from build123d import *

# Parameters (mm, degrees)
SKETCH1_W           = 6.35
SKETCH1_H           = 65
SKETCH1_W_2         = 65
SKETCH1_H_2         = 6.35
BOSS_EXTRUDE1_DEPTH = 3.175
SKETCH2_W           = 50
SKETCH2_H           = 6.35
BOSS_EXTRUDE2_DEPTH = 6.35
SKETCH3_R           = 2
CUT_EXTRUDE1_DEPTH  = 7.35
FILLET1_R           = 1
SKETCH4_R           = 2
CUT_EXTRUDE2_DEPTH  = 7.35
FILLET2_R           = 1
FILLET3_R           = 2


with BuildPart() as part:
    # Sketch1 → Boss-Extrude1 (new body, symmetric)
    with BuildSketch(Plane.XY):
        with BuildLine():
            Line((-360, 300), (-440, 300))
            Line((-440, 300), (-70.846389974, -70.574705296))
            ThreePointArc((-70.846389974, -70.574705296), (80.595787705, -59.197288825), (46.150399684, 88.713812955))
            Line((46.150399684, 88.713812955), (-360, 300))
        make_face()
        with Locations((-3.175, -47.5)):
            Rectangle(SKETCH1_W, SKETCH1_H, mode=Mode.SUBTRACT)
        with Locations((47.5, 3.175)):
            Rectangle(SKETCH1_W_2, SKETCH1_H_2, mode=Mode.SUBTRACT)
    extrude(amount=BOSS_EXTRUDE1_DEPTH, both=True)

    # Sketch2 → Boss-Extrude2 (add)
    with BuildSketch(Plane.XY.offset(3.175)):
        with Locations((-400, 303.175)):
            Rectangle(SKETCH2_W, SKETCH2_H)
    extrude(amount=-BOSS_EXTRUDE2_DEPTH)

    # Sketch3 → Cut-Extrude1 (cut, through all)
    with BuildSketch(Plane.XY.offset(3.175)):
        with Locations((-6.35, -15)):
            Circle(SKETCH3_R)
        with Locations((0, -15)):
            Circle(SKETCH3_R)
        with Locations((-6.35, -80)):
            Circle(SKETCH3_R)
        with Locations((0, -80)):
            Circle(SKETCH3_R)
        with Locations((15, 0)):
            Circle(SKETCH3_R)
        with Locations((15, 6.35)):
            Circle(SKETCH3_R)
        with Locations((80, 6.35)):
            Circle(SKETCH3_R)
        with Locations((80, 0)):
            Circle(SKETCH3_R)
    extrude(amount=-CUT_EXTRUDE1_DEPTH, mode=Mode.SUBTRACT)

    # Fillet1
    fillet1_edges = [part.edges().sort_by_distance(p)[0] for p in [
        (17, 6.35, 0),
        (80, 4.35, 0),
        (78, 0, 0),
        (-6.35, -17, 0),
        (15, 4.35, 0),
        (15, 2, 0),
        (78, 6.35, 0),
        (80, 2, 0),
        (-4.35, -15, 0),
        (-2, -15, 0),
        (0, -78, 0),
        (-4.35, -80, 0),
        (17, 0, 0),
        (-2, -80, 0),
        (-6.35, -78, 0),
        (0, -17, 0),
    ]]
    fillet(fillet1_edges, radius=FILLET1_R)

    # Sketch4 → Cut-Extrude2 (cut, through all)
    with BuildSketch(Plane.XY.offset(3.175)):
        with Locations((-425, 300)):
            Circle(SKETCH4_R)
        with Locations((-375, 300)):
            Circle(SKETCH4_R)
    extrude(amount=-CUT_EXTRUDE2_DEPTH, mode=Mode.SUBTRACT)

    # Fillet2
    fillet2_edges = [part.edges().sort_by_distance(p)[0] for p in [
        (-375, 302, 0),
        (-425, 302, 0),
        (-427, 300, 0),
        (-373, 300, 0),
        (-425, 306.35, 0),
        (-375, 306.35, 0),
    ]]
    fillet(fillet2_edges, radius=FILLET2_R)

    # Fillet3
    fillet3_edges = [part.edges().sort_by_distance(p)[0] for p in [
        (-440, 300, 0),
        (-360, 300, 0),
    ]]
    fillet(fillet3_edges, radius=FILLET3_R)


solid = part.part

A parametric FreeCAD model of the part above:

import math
import FreeCAD as App
import Part
import Sketcher

V = App.Vector
Q = App.Units.Quantity


def edges_at(feature, points):
    """Names of the edges that pass closest to the given points."""
    edges = feature.Shape.Edges
    near = lambda p: min(range(len(edges)), key=lambda i: edges[i].distToShape(Part.Vertex(*p))[0])
    return sorted({f"Edge{near(p) + 1}" for p in points})

doc = App.newDocument("Part")
body = doc.addObject("PartDesign::Body", "Body")

sketch1 = body.newObject("Sketcher::SketchObject", "Sketch")
sketch1.AttachmentSupport = (doc.getObject("XY_Plane"), [""])
sketch1.MapMode = "FlatFace"
sketch1.addGeometry(Part.LineSegment(V(-360, 300, 0), V(-440, 300, 0)), False)
sketch1.addGeometry(Part.LineSegment(V(-440, 300, 0), V(-71, -71, 0)), False)
sketch1.addGeometry(Part.ArcOfCircle(Part.Circle(V(0, 0, 0), V(0, 0, 1), 100), math.radians(-135), math.radians(63)), False)
sketch1.addGeometry(Part.LineSegment(V(46, 89, 0), V(-360, 300, 0)), False)
sketch1.addGeometry(Part.LineSegment(V(0, -80, 0), V(-6, -80, 0)), False)
sketch1.addGeometry(Part.LineSegment(V(-6, -80, 0), V(-6, -15, 0)), False)
sketch1.addGeometry(Part.LineSegment(V(-6, -15, 0), V(0, -15, 0)), False)
sketch1.addGeometry(Part.LineSegment(V(0, -15, 0), V(0, -80, 0)), False)
sketch1.addGeometry(Part.LineSegment(V(80, 0, 0), V(15, 0, 0)), False)
sketch1.addGeometry(Part.LineSegment(V(15, 0, 0), V(15, 6, 0)), False)
sketch1.addGeometry(Part.LineSegment(V(15, 6, 0), V(80, 6, 0)), False)
sketch1.addGeometry(Part.LineSegment(V(80, 6, 0), V(80, 0, 0)), False)
sketch1.addConstraint(Sketcher.Constraint("Coincident", 0, 2, 1, 1))
sketch1.addConstraint(Sketcher.Constraint("Tangent", 1, 2, 2, 1))
sketch1.addConstraint(Sketcher.Constraint("Tangent", 2, 2, 3, 1))
sketch1.addConstraint(Sketcher.Constraint("Coincident", 3, 2, 0, 1))
sketch1.addConstraint(Sketcher.Constraint("Coincident", 4, 2, 5, 1))
sketch1.addConstraint(Sketcher.Constraint("Coincident", 5, 2, 6, 1))
sketch1.addConstraint(Sketcher.Constraint("Coincident", 6, 2, 7, 1))
sketch1.addConstraint(Sketcher.Constraint("Coincident", 7, 2, 4, 1))
sketch1.addConstraint(Sketcher.Constraint("Coincident", 8, 2, 9, 1))
sketch1.addConstraint(Sketcher.Constraint("Coincident", 9, 2, 10, 1))
sketch1.addConstraint(Sketcher.Constraint("Coincident", 10, 2, 11, 1))
sketch1.addConstraint(Sketcher.Constraint("Coincident", 11, 2, 8, 1))
sketch1.addConstraint(Sketcher.Constraint("Horizontal", 0))
sketch1.addConstraint(Sketcher.Constraint("Horizontal", 4))
sketch1.addConstraint(Sketcher.Constraint("Vertical", 5))
sketch1.addConstraint(Sketcher.Constraint("Horizontal", 6))
sketch1.addConstraint(Sketcher.Constraint("Vertical", 7))
sketch1.addConstraint(Sketcher.Constraint("Horizontal", 8))
sketch1.addConstraint(Sketcher.Constraint("Vertical", 9))
sketch1.addConstraint(Sketcher.Constraint("Horizontal", 10))
sketch1.addConstraint(Sketcher.Constraint("Vertical", 11))
sketch1.addConstraint(Sketcher.Constraint("Coincident", 2, 3, -1, 1))
sketch1.addConstraint(Sketcher.Constraint("PointOnObject", 6, 2, -2))
sketch1.addConstraint(Sketcher.Constraint("PointOnObject", 8, 2, -1))
sketch1.addConstraint(Sketcher.Constraint("Equal", 10, 5))
sketch1.addConstraint(Sketcher.Constraint("Equal", 6, 9))
sketch1.addConstraint(Sketcher.Constraint("Radius", 2, Q("100 mm")))
sketch1.addConstraint(Sketcher.Constraint("DistanceX", 0, 2, 0, 1, Q("80 mm")))
sketch1.addConstraint(Sketcher.Constraint("DistanceX", 8, 2, 8, 1, Q("65 mm")))
sketch1.addConstraint(Sketcher.Constraint("DistanceX", 0, 2, -1, 1, Q("440 mm")))
sketch1.addConstraint(Sketcher.Constraint("DistanceY", -1, 1, 0, 2, Q("300 mm")))
sketch1.addConstraint(Sketcher.Constraint("DistanceY", 4, 2, -1, 1, Q("80 mm")))
sketch1.addConstraint(Sketcher.Constraint("DistanceX", -1, 1, 8, 2, Q("15 mm")))
sketch1.addConstraint(Sketcher.Constraint("DistanceX", 4, 2, 4, 1, Q("6.35 mm")))
pad1 = body.newObject("PartDesign::Pad", "Pad")
pad1.Profile = sketch1
pad1.Length = 6.35
pad1.Midplane = True

sketch2 = body.newObject("Sketcher::SketchObject", "Sketch001")
sketch2.AttachmentSupport = (doc.getObject("XY_Plane"), [""])
sketch2.MapMode = "FlatFace"
sketch2.AttachmentOffset = App.Placement(V(0, 0, 3.175), App.Rotation())
sketch2.addGeometry(Part.LineSegment(V(-425, 306, 0), V(-425, 300, 0)), False)
sketch2.addGeometry(Part.LineSegment(V(-425, 300, 0), V(-375, 300, 0)), False)
sketch2.addGeometry(Part.LineSegment(V(-375, 300, 0), V(-375, 306, 0)), False)
sketch2.addGeometry(Part.LineSegment(V(-375, 306, 0), V(-425, 306, 0)), False)
sketch2.addConstraint(Sketcher.Constraint("Coincident", 0, 2, 1, 1))
sketch2.addConstraint(Sketcher.Constraint("Coincident", 1, 2, 2, 1))
sketch2.addConstraint(Sketcher.Constraint("Coincident", 2, 2, 3, 1))
sketch2.addConstraint(Sketcher.Constraint("Coincident", 3, 2, 0, 1))
sketch2.addConstraint(Sketcher.Constraint("Vertical", 0))
sketch2.addConstraint(Sketcher.Constraint("Horizontal", 1))
sketch2.addConstraint(Sketcher.Constraint("Vertical", 2))
sketch2.addConstraint(Sketcher.Constraint("Horizontal", 3))
sketch2.addConstraint(Sketcher.Constraint("DistanceX", 1, 1, 1, 2, Q("50 mm")))
sketch2.addConstraint(Sketcher.Constraint("DistanceX", 0, 2, -1, 1, Q("425 mm")))
sketch2.addConstraint(Sketcher.Constraint("DistanceY", -1, 1, 0, 2, Q("300 mm")))
sketch2.addConstraint(Sketcher.Constraint("DistanceY", 0, 2, 0, 1, Q("6.35 mm")))
pad2 = body.newObject("PartDesign::Pad", "Pad001")
pad2.Profile = sketch2
pad2.Length = 6.35
pad2.Reversed = True

sketch3 = body.newObject("Sketcher::SketchObject", "Sketch002")
sketch3.AttachmentSupport = (doc.getObject("XY_Plane"), [""])
sketch3.MapMode = "FlatFace"
sketch3.AttachmentOffset = App.Placement(V(0, 0, 3.175), App.Rotation())
sketch3.addGeometry(Part.Circle(V(-6.3, -15, 0), V(0, 0, 1), 2), False)
sketch3.addGeometry(Part.Circle(V(0, -15, 0), V(0, 0, 1), 2), False)
sketch3.addGeometry(Part.Circle(V(-6.3, -80, 0), V(0, 0, 1), 2), False)
sketch3.addGeometry(Part.Circle(V(0, -80, 0), V(0, 0, 1), 2), False)
sketch3.addGeometry(Part.Circle(V(15, 0, 0), V(0, 0, 1), 2), False)
sketch3.addGeometry(Part.Circle(V(15, 6.3, 0), V(0, 0, 1), 2), False)
sketch3.addGeometry(Part.Circle(V(80, 6.3, 0), V(0, 0, 1), 2), False)
sketch3.addGeometry(Part.Circle(V(80, 0, 0), V(0, 0, 1), 2), False)
sketch3.addConstraint(Sketcher.Constraint("Equal", 0, 1))
sketch3.addConstraint(Sketcher.Constraint("Equal", 1, 2))
sketch3.addConstraint(Sketcher.Constraint("Equal", 2, 3))
sketch3.addConstraint(Sketcher.Constraint("Equal", 3, 4))
sketch3.addConstraint(Sketcher.Constraint("Equal", 4, 5))
sketch3.addConstraint(Sketcher.Constraint("Equal", 5, 6))
sketch3.addConstraint(Sketcher.Constraint("Equal", 6, 7))
sketch3.addConstraint(Sketcher.Constraint("PointOnObject", 1, 3, -2))
sketch3.addConstraint(Sketcher.Constraint("PointOnObject", 3, 3, -2))
sketch3.addConstraint(Sketcher.Constraint("PointOnObject", 4, 3, -1))
sketch3.addConstraint(Sketcher.Constraint("PointOnObject", 7, 3, -1))
sketch3.addConstraint(Sketcher.Constraint("Horizontal", 0, 3, 1, 3))
sketch3.addConstraint(Sketcher.Constraint("Horizontal", 2, 3, 3, 3))
sketch3.addConstraint(Sketcher.Constraint("Horizontal", 5, 3, 6, 3))
sketch3.addConstraint(Sketcher.Constraint("Vertical", 0, 3, 2, 3))
sketch3.addConstraint(Sketcher.Constraint("Vertical", 4, 3, 5, 3))
sketch3.addConstraint(Sketcher.Constraint("Vertical", 6, 3, 7, 3))
sketch3.addConstraint(Sketcher.Constraint("Diameter", 0, Q("4 mm")))
sketch3.addConstraint(Sketcher.Constraint("DistanceY", 0, 3, -1, 1, Q("15 mm")))
sketch3.addConstraint(Sketcher.Constraint("DistanceY", 2, 3, -1, 1, Q("80 mm")))
sketch3.addConstraint(Sketcher.Constraint("DistanceX", -1, 1, 4, 3, Q("15 mm")))
sketch3.addConstraint(Sketcher.Constraint("DistanceX", -1, 1, 6, 3, Q("80 mm")))
sketch3.addConstraint(Sketcher.Constraint("DistanceX", 0, 3, -1, 1, Q("6.35 mm")))
sketch3.addConstraint(Sketcher.Constraint("DistanceY", -1, 1, 5, 3, Q("6.35 mm")))
pocket1 = body.newObject("PartDesign::Pocket", "Pocket")
pocket1.Profile = sketch3
pocket1.Type = "ThroughAll"
doc.recompute()

fillet = body.newObject("PartDesign::Fillet", "Fillet")
fillet.Base = (pocket1, edges_at(pocket1, [
    (17, 6.35, 0),
    (80, 4.35, 0),
    (78, 0, 0),
    (-6.35, -17, 0),
    (15, 4.35, 0),
    (15, 2, 0),
    (78, 6.35, 0),
    (80, 2, 0),
    (-4.35, -15, 0),
    (-2, -15, 0),
    (0, -78, 0),
    (-4.35, -80, 0),
    (17, 0, 0),
    (-2, -80, 0),
    (-6.35, -78, 0),
    (0, -17, 0),
]))
fillet.Radius = 1

sketch4 = body.newObject("Sketcher::SketchObject", "Sketch003")
sketch4.AttachmentSupport = (doc.getObject("XY_Plane"), [""])
sketch4.MapMode = "FlatFace"
sketch4.AttachmentOffset = App.Placement(V(0, 0, 3.175), App.Rotation())
sketch4.addGeometry(Part.Circle(V(-425, 300, 0), V(0, 0, 1), 2), False)
sketch4.addGeometry(Part.Circle(V(-375, 300, 0), V(0, 0, 1), 2), False)
sketch4.addConstraint(Sketcher.Constraint("Equal", 0, 1))
sketch4.addConstraint(Sketcher.Constraint("Horizontal", 0, 3, 1, 3))
sketch4.addConstraint(Sketcher.Constraint("Diameter", 0, Q("4 mm")))
sketch4.addConstraint(Sketcher.Constraint("DistanceX", 0, 3, -1, 1, Q("425 mm")))
sketch4.addConstraint(Sketcher.Constraint("DistanceY", -1, 1, 0, 3, Q("300 mm")))
sketch4.addConstraint(Sketcher.Constraint("DistanceX", 1, 3, -1, 1, Q("375 mm")))
pocket2 = body.newObject("PartDesign::Pocket", "Pocket001")
pocket2.Profile = sketch4
pocket2.Type = "ThroughAll"
doc.recompute()

fillet2 = body.newObject("PartDesign::Fillet", "Fillet001")
fillet2.Base = (pocket2, edges_at(pocket2, [
    (-375, 302, 0),
    (-425, 302, 0),
    (-427, 300, 0),
    (-373, 300, 0),
    (-425, 306.35, 0),
    (-375, 306.35, 0),
]))
fillet2.Radius = 1
doc.recompute()

fillet3 = body.newObject("PartDesign::Fillet", "Fillet002")
fillet3.Base = (fillet2, edges_at(fillet2, [(-440, 300, 0), (-360, 300, 0)]))
fillet3.Radius = 2

doc.recompute()
